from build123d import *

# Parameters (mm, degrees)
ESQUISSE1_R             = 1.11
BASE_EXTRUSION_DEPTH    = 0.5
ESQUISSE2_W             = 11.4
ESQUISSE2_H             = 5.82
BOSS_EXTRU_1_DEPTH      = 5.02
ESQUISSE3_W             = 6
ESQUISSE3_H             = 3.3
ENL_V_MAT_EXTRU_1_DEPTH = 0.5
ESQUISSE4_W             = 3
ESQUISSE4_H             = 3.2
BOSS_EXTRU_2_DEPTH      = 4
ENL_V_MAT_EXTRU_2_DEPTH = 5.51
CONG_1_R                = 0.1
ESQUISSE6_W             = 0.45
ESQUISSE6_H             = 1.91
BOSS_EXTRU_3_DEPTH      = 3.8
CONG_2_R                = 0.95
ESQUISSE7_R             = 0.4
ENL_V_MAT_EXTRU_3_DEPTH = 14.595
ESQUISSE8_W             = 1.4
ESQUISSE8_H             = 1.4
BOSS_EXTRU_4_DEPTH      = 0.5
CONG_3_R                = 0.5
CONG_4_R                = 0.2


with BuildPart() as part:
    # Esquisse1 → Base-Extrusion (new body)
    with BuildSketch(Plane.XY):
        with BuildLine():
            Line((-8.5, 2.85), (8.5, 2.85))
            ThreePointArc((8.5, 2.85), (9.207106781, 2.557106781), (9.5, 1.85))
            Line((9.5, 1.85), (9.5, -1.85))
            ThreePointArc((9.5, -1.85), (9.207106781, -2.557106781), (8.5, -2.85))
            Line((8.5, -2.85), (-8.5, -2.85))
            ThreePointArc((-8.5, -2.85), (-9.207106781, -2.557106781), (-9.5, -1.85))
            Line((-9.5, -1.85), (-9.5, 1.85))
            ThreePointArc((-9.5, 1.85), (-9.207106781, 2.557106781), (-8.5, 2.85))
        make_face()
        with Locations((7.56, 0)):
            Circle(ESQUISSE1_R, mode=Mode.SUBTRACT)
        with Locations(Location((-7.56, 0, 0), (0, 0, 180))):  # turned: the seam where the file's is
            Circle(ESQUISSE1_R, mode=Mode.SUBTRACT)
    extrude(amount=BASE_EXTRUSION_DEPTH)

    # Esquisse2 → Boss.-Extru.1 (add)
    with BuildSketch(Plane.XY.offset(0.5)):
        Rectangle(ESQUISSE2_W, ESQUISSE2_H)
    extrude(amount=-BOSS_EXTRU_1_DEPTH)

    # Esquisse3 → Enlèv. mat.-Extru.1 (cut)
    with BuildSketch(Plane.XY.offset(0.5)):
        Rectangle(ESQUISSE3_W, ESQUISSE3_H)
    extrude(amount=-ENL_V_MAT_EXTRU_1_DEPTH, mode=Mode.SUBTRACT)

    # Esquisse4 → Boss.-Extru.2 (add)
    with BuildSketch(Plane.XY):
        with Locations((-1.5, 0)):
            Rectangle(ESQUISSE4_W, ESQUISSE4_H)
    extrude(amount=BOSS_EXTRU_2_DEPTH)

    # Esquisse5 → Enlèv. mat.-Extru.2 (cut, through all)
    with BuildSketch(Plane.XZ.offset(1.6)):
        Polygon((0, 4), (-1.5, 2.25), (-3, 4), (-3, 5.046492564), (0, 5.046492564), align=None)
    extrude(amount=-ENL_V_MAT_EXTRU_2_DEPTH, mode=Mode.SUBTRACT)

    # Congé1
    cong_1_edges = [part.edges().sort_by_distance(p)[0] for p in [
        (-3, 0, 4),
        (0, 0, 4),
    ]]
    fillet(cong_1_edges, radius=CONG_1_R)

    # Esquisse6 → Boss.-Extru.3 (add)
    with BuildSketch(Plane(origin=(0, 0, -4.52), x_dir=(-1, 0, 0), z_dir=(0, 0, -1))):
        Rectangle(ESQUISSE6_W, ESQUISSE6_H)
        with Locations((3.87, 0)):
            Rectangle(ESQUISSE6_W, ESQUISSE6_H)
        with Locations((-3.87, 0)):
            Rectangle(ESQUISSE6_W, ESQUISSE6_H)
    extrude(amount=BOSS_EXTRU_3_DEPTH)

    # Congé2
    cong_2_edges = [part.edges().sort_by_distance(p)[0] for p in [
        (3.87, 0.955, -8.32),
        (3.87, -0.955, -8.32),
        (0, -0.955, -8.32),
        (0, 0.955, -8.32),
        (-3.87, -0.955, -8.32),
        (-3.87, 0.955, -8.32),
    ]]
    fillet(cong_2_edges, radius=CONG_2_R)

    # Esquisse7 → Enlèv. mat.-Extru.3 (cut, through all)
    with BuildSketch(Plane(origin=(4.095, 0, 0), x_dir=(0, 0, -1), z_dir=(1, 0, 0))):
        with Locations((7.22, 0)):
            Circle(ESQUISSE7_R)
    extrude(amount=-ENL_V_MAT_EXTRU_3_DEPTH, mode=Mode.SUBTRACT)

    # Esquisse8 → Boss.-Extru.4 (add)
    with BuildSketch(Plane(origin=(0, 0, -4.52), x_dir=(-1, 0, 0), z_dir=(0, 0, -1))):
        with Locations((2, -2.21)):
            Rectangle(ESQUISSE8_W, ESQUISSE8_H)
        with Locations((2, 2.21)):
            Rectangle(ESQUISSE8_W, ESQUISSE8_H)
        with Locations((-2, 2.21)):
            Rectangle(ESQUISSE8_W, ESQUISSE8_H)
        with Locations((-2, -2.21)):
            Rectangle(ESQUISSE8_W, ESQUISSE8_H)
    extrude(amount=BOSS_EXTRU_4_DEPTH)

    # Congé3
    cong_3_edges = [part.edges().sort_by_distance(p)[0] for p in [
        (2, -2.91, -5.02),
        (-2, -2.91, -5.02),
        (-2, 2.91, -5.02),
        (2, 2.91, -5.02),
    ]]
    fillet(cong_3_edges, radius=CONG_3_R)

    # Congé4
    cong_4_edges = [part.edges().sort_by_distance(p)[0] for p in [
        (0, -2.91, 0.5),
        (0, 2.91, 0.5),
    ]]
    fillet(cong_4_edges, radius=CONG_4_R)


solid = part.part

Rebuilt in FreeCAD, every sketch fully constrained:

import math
import FreeCAD as App
import Part
import Sketcher
from FreeCAD import Vector
Q = App.Units.Quantity


def edges_at(feature, points):
    """Names of the edges that pass closest to the given points."""
    edges = feature.Shape.Edges
    near = lambda p: min(range(len(edges)), key=lambda i: edges[i].distToShape(Part.Vertex(*p))[0])
    return sorted({f"Edge{near(p) + 1}" for p in points})

doc = App.newDocument("Part")
body = doc.addObject("PartDesign::Body", "Body")

sketch1 = body.newObject("Sketcher::SketchObject", "Sketch")
sketch1.AttachmentSupport = (doc.getObject("XY_Plane"), [""])
sketch1.MapMode = "FlatFace"
sketch1.addGeometry(Part.LineSegment(Vector(8.5, 2.9, 0), Vector(-8.5, 2.9, 0)), False)
sketch1.addGeometry(Part.ArcOfCircle(Part.Circle(Vector(-8.5, 1.8, 0), Vector(0, 0, 1), 1), math.radians(90), math.radians(180)), False)
sketch1.addGeometry(Part.LineSegment(Vector(-9.5, 1.9, 0), Vector(-9.5, -1.9, 0)), False)
sketch1.addGeometry(Part.ArcOfCircle(Part.Circle(Vector(-8.5, -1.8, 0), Vector(0, 0, 1), 1), math.radians(-180), math.radians(-90)), False)
sketch1.addGeometry(Part.LineSegment(Vector(-8.5, -2.9, 0), Vector(8.5, -2.9, 0)), False)
sketch1.addGeometry(Part.ArcOfCircle(Part.Circle(Vector(8.5, -1.8, 0), Vector(0, 0, 1), 1), math.radians(-90), math.radians(0)), False)
sketch1.addGeometry(Part.LineSegment(Vector(9.5, -1.9, 0), Vector(9.5, 1.9, 0)), False)
sketch1.addGeometry(Part.ArcOfCircle(Part.Circle(Vector(8.5, 1.8, 0), Vector(0, 0, 1), 1), math.radians(0), math.radians(90)), False)
sketch1.addGeometry(Part.Circle(Vector(7.6, 0, 0), Vector(0, 0, 1), 1.1), False)
sketch1.addGeometry(Part.Circle(Vector(-7.6, 0, 0), Vector(0, 0, 1), 1.1), False)
sketch1.addConstraint(Sketcher.Constraint("Tangent", 0, 2, 1, 1))
sketch1.addConstraint(Sketcher.Constraint("Tangent", 1, 2, 2, 1))
sketch1.addConstraint(Sketcher.Constraint("Tangent", 2, 2, 3, 1))
sketch1.addConstraint(Sketcher.Constraint("Tangent", 3, 2, 4, 1))
sketch1.addConstraint(Sketcher.Constraint("Tangent", 4, 2, 5, 1))
sketch1.addConstraint(Sketcher.Constraint("Tangent", 5, 2, 6, 1))
sketch1.addConstraint(Sketcher.Constraint("Tangent", 6, 2, 7, 1))
sketch1.addConstraint(Sketcher.Constraint("Tangent", 7, 2, 0, 1))
sketch1.addConstraint(Sketcher.Constraint("Horizontal", 0))
sketch1.addConstraint(Sketcher.Constraint("Vertical", 2))
sketch1.addConstraint(Sketcher.Constraint("Horizontal", 4))
sketch1.addConstraint(Sketcher.Constraint("Vertical", 6))
sketch1.addConstraint(Sketcher.Constraint("Equal", 1, 3))
sketch1.addConstraint(Sketcher.Constraint("Equal", 3, 5))
sketch1.addConstraint(Sketcher.Constraint("Equal", 5, 7))
sketch1.addConstraint(Sketcher.Constraint("Equal", 8, 9))
sketch1.addConstraint(Sketcher.Constraint("Symmetric", 1, 3, 5, 3, -1, 1))
sketch1.addConstraint(Sketcher.Constraint("Symmetric", 8, 3, 9, 3, -1, 1))
sketch1.addConstraint(Sketcher.Constraint("PointOnObject", 8, 3, -1))
sketch1.addConstraint(Sketcher.Constraint("Radius", 1, Q("1 mm")))
sketch1.addConstraint(Sketcher.Constraint("Diameter", 8, Q("2.22 mm")))
sketch1.addConstraint(Sketcher.Constraint("DistanceX", 0, 2, 0, 1, Q("17 mm")))
sketch1.addConstraint(Sketcher.Constraint("DistanceY", 2, 2, 2, 1, Q("3.7 mm")))
sketch1.addConstraint(Sketcher.Constraint("DistanceX", -1, 1, 8, 3, Q("7.56 mm")))
pad1 = body.newObject("PartDesign::Pad", "Pad")
pad1.Profile = sketch1
pad1.Length = 0.5

sketch2 = body.newObject("Sketcher::SketchObject", "Sketch001")
sketch2.AttachmentSupport = (doc.getObject("XY_Plane"), [""])
sketch2.MapMode = "FlatFace"
sketch2.AttachmentOffset = App.Placement(Vector(0, 0, 0.5), App.Rotation())
sketch2.addGeometry(Part.LineSegment(Vector(-6, 3, 0), Vector(-6, -3, 0)), False)
sketch2.addGeometry(Part.LineSegment(Vector(-6, -3, 0), Vector(6, -3, 0)), False)
sketch2.addGeometry(Part.LineSegment(Vector(6, -3, 0), Vector(6, 3, 0)), False)
sketch2.addGeometry(Part.LineSegment(Vector(6, 3, 0), Vector(-6, 3, 0)), False)
sketch2.addConstraint(Sketcher.Constraint("Coincident", 0, 2, 1, 1))
sketch2.addConstraint(Sketcher.Constraint("Coincident", 1, 2, 2, 1))
sketch2.addConstraint(Sketcher.Constraint("Coincident", 2, 2, 3, 1))
sketch2.addConstraint(Sketcher.Constraint("Coincident", 3, 2, 0, 1))
sketch2.addConstraint(Sketcher.Constraint("Vertical", 0))
sketch2.addConstraint(Sketcher.Constraint("Horizontal", 1))
sketch2.addConstraint(Sketcher.Constraint("Vertical", 2))
sketch2.addConstraint(Sketcher.Constraint("Horizontal", 3))
sketch2.addConstraint(Sketcher.Constraint("Symmetric", 0, 2, 2, 2, -1, 1))
sketch2.addConstraint(Sketcher.Constraint("DistanceX", 1, 1, 1, 2, Q("11.4 mm")))
sketch2.addConstraint(Sketcher.Constraint("DistanceY", 0, 2, 0, 1, Q("5.82 mm")))
pad2 = body.newObject("PartDesign::Pad", "Pad001")
pad2.Profile = sketch2
pad2.Length = 5.02
pad2.Reversed = True

sketch3 = body.newObject("Sketcher::SketchObject", "Sketch002")
sketch3.AttachmentSupport = (doc.getObject("XY_Plane"), [""])
sketch3.MapMode = "FlatFace"
sketch3.AttachmentOffset = App.Placement(Vector(0, 0, 0.5), App.Rotation())
sketch3.addGeometry(Part.LineSegment(Vector(-3, 1.6, 0), Vector(-3, -1.6, 0)), False)
sketch3.addGeometry(Part.LineSegment(Vector(-3, -1.6, 0), Vector(3, -1.6, 0)), False)
sketch3.addGeometry(Part.LineSegment(Vector(3, -1.6, 0), Vector(3, 1.6, 0)), False)
sketch3.addGeometry(Part.LineSegment(Vector(3, 1.6, 0), Vector(-3, 1.6, 0)), False)
sketch3.addConstraint(Sketcher.Constraint("Coincident", 0, 2, 1, 1))
sketch3.addConstraint(Sketcher.Constraint("Coincident", 1, 2, 2, 1))
sketch3.addConstraint(Sketcher.Constraint("Coincident", 2, 2, 3, 1))
sketch3.addConstraint(Sketcher.Constraint("Coincident", 3, 2, 0, 1))
sketch3.addConstraint(Sketcher.Constraint("Vertical", 0))
sketch3.addConstraint(Sketcher.Constraint("Horizontal", 1))
sketch3.addConstraint(Sketcher.Constraint("Vertical", 2))
sketch3.addConstraint(Sketcher.Constraint("Horizontal", 3))
sketch3.addConstraint(Sketcher.Constraint("Symmetric", 0, 2, 2, 2, -1, 1))
sketch3.addConstraint(Sketcher.Constraint("DistanceX", 1, 1, 1, 2, Q("6 mm")))
sketch3.addConstraint(Sketcher.Constraint("DistanceY", 0, 2, 0, 1, Q("3.3 mm")))
pocket1 = body.newObject("PartDesign::Pocket", "Pocket")
pocket1.Profile = sketch3
pocket1.Length = 0.5

sketch4 = body.newObject("Sketcher::SketchObject", "Sketch003")
sketch4.AttachmentSupport = (doc.getObject("XY_Plane"), [""])
sketch4.MapMode = "FlatFace"
sketch4.addGeometry(Part.LineSegment(Vector(-3, 1.6, 0), Vector(-3, -1.6, 0)), False)
sketch4.addGeometry(Part.LineSegment(Vector(-3, -1.6, 0), Vector(0, -1.6, 0)), False)
sketch4.addGeometry(Part.LineSegment(Vector(0, -1.6, 0), Vector(0, 1.6, 0)), False)
sketch4.addGeometry(Part.LineSegment(Vector(0, 1.6, 0), Vector(-3, 1.6, 0)), False)
sketch4.addConstraint(Sketcher.Constraint("Coincident", 0, 2, 1, 1))
sketch4.addConstraint(Sketcher.Constraint("Coincident", 1, 2, 2, 1))
sketch4.addConstraint(Sketcher.Constraint("Coincident", 2, 2, 3, 1))
sketch4.addConstraint(Sketcher.Constraint("Coincident", 3, 2, 0, 1))
sketch4.addConstraint(Sketcher.Constraint("Vertical", 0))
sketch4.addConstraint(Sketcher.Constraint("Horizontal", 1))
sketch4.addConstraint(Sketcher.Constraint("Vertical", 2))
sketch4.addConstraint(Sketcher.Constraint("Horizontal", 3))
sketch4.addConstraint(Sketcher.Constraint("Symmetric", 1, 2, 2, 2, -1, 1))
sketch4.addConstraint(Sketcher.Constraint("DistanceX", 1, 1, 1, 2, Q("3 mm")))
sketch4.addConstraint(Sketcher.Constraint("DistanceY", 0, 2, 0, 1, Q("3.2 mm")))
pad3 = body.newObject("PartDesign::Pad", "Pad002")
pad3.Profile = sketch4
pad3.Length = 4

sketch5 = body.newObject("Sketcher::SketchObject", "Sketch004")
sketch5.AttachmentSupport = (doc.getObject("XZ_Plane"), [""])
sketch5.MapMode = "FlatFace"
sketch5.AttachmentOffset = App.Placement(Vector(0, 0, 1.6), App.Rotation())
sketch5.addGeometry(Part.LineSegment(Vector(-1.5, 2.2, 0), Vector(0, 4, 0)), False)
sketch5.addGeometry(Part.LineSegment(Vector(0, 4, 0), Vector(0, 5, 0)), False)
sketch5.addGeometry(Part.LineSegment(Vector(0, 5, 0), Vector(-3, 5, 0)), False)
sketch5.addGeometry(Part.LineSegment(Vector(-3, 5, 0), Vector(-3, 4, 0)), False)
sketch5.addGeometry(Part.LineSegment(Vector(-3, 4, 0), Vector(-1.5, 2.2, 0)), False)
sketch5.addConstraint(Sketcher.Constraint("Coincident", 0, 2, 1, 1))
sketch5.addConstraint(Sketcher.Constraint("Coincident", 1, 2, 2, 1))
sketch5.addConstraint(Sketcher.Constraint("Coincident", 2, 2, 3, 1))
sketch5.addConstraint(Sketcher.Constraint("Coincident", 3, 2, 4, 1))
sketch5.addConstraint(Sketcher.Constraint("Coincident", 4, 2, 0, 1))
sketch5.addConstraint(Sketcher.Constraint("Vertical", 1))
sketch5.addConstraint(Sketcher.Constraint("Horizontal", 2))
sketch5.addConstraint(Sketcher.Constraint("Vertical", 3))
sketch5.addConstraint(Sketcher.Constraint("PointOnObject", 0, 2, -2))
sketch5.addConstraint(Sketcher.Constraint("Horizontal", 0, 2, 3, 2))
sketch5.addConstraint(Sketcher.Constraint("Equal", 0, 4))
sketch5.addConstraint(Sketcher.Constraint("DistanceX", 2, 2, 2, 1, Q("3 mm")))
sketch5.addConstraint(Sketcher.Constraint("DistanceY", -1, 1, 0, 2, Q("4 mm")))
sketch5.addConstraint(Sketcher.Constraint("DistanceY", -1, 1, 4, 2, Q("2.25 mm")))
sketch5.addConstraint(Sketcher.Constraint("DistanceY", 1, 1, 1, 2, Q("1.046493 mm")))
pocket2 = body.newObject("PartDesign::Pocket", "Pocket001")
pocket2.Profile = sketch5
pocket2.Type = "ThroughAll"
doc.recompute()

fillet = body.newObject("PartDesign::Fillet", "Fillet")
fillet.Base = (pocket2, edges_at(pocket2, [(-3, 0, 4), (0, 0, 4)]))
fillet.Radius = 0.1

sketch6 = body.newObject("Sketcher::SketchObject", "Sketch005")
sketch6.AttachmentSupport = (doc.getObject("XY_Plane"), [""])
sketch6.MapMode = "FlatFace"
sketch6.AttachmentOffset = App.Placement(Vector(0, 0, -4.52), App.Rotation())
sketch6.addGeometry(Part.LineSegment(Vector(0.23, 0.95, 0), Vector(0.23, -0.95, 0)), False)
sketch6.addGeometry(Part.LineSegment(Vector(0.23, -0.95, 0), Vector(-0.23, -0.95, 0)), False)
sketch6.addGeometry(Part.LineSegment(Vector(-0.23, -0.95, 0), Vector(-0.23, 0.95, 0)), False)
sketch6.addGeometry(Part.LineSegment(Vector(-0.23, 0.95, 0), Vector(0.23, 0.95, 0)), False)
sketch6.addGeometry(Part.LineSegment(Vector(-3.65, 0.95, 0), Vector(-3.65, -0.95, 0)), False)
sketch6.addGeometry(Part.LineSegment(Vector(-3.65, -0.95, 0), Vector(-4.09, -0.95, 0)), False)
sketch6.addGeometry(Part.LineSegment(Vector(-4.09, -0.95, 0), Vector(-4.09, 0.95, 0)), False)
sketch6.addGeometry(Part.LineSegment(Vector(-4.09, 0.95, 0), Vector(-3.65, 0.95, 0)), False)
sketch6.addGeometry(Part.LineSegment(Vector(4.09, 0.95, 0), Vector(4.09, -0.95, 0)), False)
sketch6.addGeometry(Part.LineSegment(Vector(4.09, -0.95, 0), Vector(3.65, -0.95, 0)), False)
sketch6.addGeometry(Part.LineSegment(Vector(3.65, -0.95, 0), Vector(3.65, 0.95, 0)), False)
sketch6.addGeometry(Part.LineSegment(Vector(3.65, 0.95, 0), Vector(4.09, 0.95, 0)), False)
sketch6.addConstraint(Sketcher.Constraint("Coincident", 0, 2, 1, 1))
sketch6.addConstraint(Sketcher.Constraint("Coincident", 1, 2, 2, 1))
sketch6.addConstraint(Sketcher.Constraint("Coincident", 2, 2, 3, 1))
sketch6.addConstraint(Sketcher.Constraint("Coincident", 3, 2, 0, 1))
sketch6.addConstraint(Sketcher.Constraint("Coincident", 4, 2, 5, 1))
sketch6.addConstraint(Sketcher.Constraint("Coincident", 5, 2, 6, 1))
sketch6.addConstraint(Sketcher.Constraint("Coincident", 6, 2, 7, 1))
sketch6.addConstraint(Sketcher.Constraint("Coincident", 7, 2, 4, 1))
sketch6.addConstraint(Sketcher.Constraint("Coincident", 8, 2, 9, 1))
sketch6.addConstraint(Sketcher.Constraint("Coincident", 9, 2, 10, 1))
sketch6.addConstraint(Sketcher.Constraint("Coincident", 10, 2, 11, 1))
sketch6.addConstraint(Sketcher.Constraint("Coincident", 11, 2, 8, 1))
sketch6.addConstraint(Sketcher.Constraint("Vertical", 0))
sketch6.addConstraint(Sketcher.Constraint("Horizontal", 1))
sketch6.addConstraint(Sketcher.Constraint("Vertical", 2))
sketch6.addConstraint(Sketcher.Constraint("Horizontal", 3))
sketch6.addConstraint(Sketcher.Constraint("Vertical", 4))
sketch6.addConstraint(Sketcher.Constraint("Horizontal", 5))
sketch6.addConstraint(Sketcher.Constraint("Vertical", 6))
sketch6.addConstraint(Sketcher.Constraint("Horizontal", 7))
sketch6.addConstraint(Sketcher.Constraint("Vertical", 8))
sketch6.addConstraint(Sketcher.Constraint("Horizontal", 9))
sketch6.addConstraint(Sketcher.Constraint("Vertical", 10))
sketch6.addConstraint(Sketcher.Constraint("Horizontal", 11))
sketch6.addConstraint(Sketcher.Constraint("Symmetric", 0, 2, 2, 2, -1, 1))
sketch6.addConstraint(Sketcher.Constraint("Symmetric", 6, 2, 8, 2, -1, 1))
sketch6.addConstraint(Sketcher.Constraint("Symmetric", 4, 2, 10, 2, -1, 1))
sketch6.addConstraint(Sketcher.Constraint("Horizontal", 1, 2, 4, 2))
sketch6.addConstraint(Sketcher.Constraint("Horizontal", 3, 2, 6, 2))
sketch6.addConstraint(Sketcher.Constraint("Equal", 3, 5))
sketch6.addConstraint(Sketcher.Constraint("DistanceX", 1, 2, 1, 1, Q("0.45 mm")))
sketch6.addConstraint(Sketcher.Constraint("DistanceY", 0, 2, 0, 1, Q("1.91 mm")))
sketch6.addConstraint(Sketcher.Constraint("DistanceX", 4, 2, 1, 2, Q("3.42 mm")))
pad4 = body.newObject("PartDesign::Pad", "Pad003")
pad4.Profile = sketch6
pad4.Length = 3.8
pad4.Reversed = True
doc.recompute()

fillet2 = body.newObject("PartDesign::Fillet", "Fillet001")
fillet2.Base = (pad4, edges_at(pad4, [
    (3.87, 0.955, -8.32),
    (3.87, -0.955, -8.32),
    (0, -0.955, -8.32),
    (0, 0.955, -8.32),
    (-3.87, -0.955, -8.32),
    (-3.87, 0.955, -8.32),
]))
fillet2.Radius = 0.95

sketch7 = body.newObject("Sketcher::SketchObject", "Sketch006")
sketch7.AttachmentSupport = (doc.getObject("YZ_Plane"), [""])
sketch7.MapMode = "FlatFace"
sketch7.AttachmentOffset = App.Placement(Vector(0, 0, 4.095), App.Rotation())
sketch7.addGeometry(Part.Circle(Vector(0, -7.22, 0), Vector(0, 0, 1), 0.4), False)
sketch7.addConstraint(Sketcher.Constraint("PointOnObject", 0, 3, -2))
sketch7.addConstraint(Sketcher.Constraint("Diameter", 0, Q("0.8 mm")))
sketch7.addConstraint(Sketcher.Constraint("DistanceY", 0, 3, -1, 1, Q("7.22 mm")))
pocket3 = body.newObject("PartDesign::Pocket", "Pocket002")
pocket3.Profile = sketch7
pocket3.Type = "ThroughAll"

sketch8 = body.newObject("Sketcher::SketchObject", "Sketch007")
sketch8.AttachmentSupport = (doc.getObject("XY_Plane"), [""])
sketch8.MapMode = "FlatFace"
sketch8.AttachmentOffset = App.Placement(Vector(0, 0, -4.52), App.Rotation())
sketch8.addGeometry(Part.LineSegment(Vector(-1.3, -1.5, 0), Vector(-1.3, -2.9, 0)), False)
sketch8.addGeometry(Part.LineSegment(Vector(-1.3, -2.9, 0), Vector(-2.7, -2.9, 0)), False)
sketch8.addGeometry(Part.LineSegment(Vector(-2.7, -2.9, 0), Vector(-2.7, -1.5, 0)), False)
sketch8.addGeometry(Part.LineSegment(Vector(-2.7, -1.5, 0), Vector(-1.3, -1.5, 0)), False)
sketch8.addGeometry(Part.LineSegment(Vector(-1.3, 2.9, 0), Vector(-1.3, 1.5, 0)), False)
sketch8.addGeometry(Part.LineSegment(Vector(-1.3, 1.5, 0), Vector(-2.7, 1.5, 0)), False)
sketch8.addGeometry(Part.LineSegment(Vector(-2.7, 1.5, 0), Vector(-2.7, 2.9, 0)), False)
sketch8.addGeometry(Part.LineSegment(Vector(-2.7, 2.9, 0), Vector(-1.3, 2.9, 0)), False)
sketch8.addGeometry(Part.LineSegment(Vector(2.7, 2.9, 0), Vector(2.7, 1.5, 0)), False)
sketch8.addGeometry(Part.LineSegment(Vector(2.7, 1.5, 0), Vector(1.3, 1.5, 0)), False)
sketch8.addGeometry(Part.LineSegment(Vector(1.3, 1.5, 0), Vector(1.3, 2.9, 0)), False)
sketch8.addGeometry(Part.LineSegment(Vector(1.3, 2.9, 0), Vector(2.7, 2.9, 0)), False)
sketch8.addGeometry(Part.LineSegment(Vector(2.7, -1.5, 0), Vector(2.7, -2.9, 0)), False)
sketch8.addGeometry(Part.LineSegment(Vector(2.7, -2.9, 0), Vector(1.3, -2.9, 0)), False)
sketch8.addGeometry(Part.LineSegment(Vector(1.3, -2.9, 0), Vector(1.3, -1.5, 0)), False)
sketch8.addGeometry(Part.LineSegment(Vector(1.3, -1.5, 0), Vector(2.7, -1.5, 0)), False)
sketch8.addConstraint(Sketcher.Constraint("Coincident", 0, 2, 1, 1))
sketch8.addConstraint(Sketcher.Constraint("Coincident", 1, 2, 2, 1))
sketch8.addConstraint(Sketcher.Constraint("Coincident", 2, 2, 3, 1))
sketch8.addConstraint(Sketcher.Constraint("Coincident", 3, 2, 0, 1))
sketch8.addConstraint(Sketcher.Constraint("Coincident", 4, 2, 5, 1))
sketch8.addConstraint(Sketcher.Constraint("Coincident", 5, 2, 6, 1))
sketch8.addConstraint(Sketcher.Constraint("Coincident", 6, 2, 7, 1))
sketch8.addConstraint(Sketcher.Constraint("Coincident", 7, 2, 4, 1))
sketch8.addConstraint(Sketcher.Constraint("Coincident", 8, 2, 9, 1))
sketch8.addConstraint(Sketcher.Constraint("Coincident", 9, 2, 10, 1))
sketch8.addConstraint(Sketcher.Constraint("Coincident", 10, 2, 11, 1))
sketch8.addConstraint(Sketcher.Constraint("Coincident", 11, 2, 8, 1))
sketch8.addConstraint(Sketcher.Constraint("Coincident", 12, 2, 13, 1))
sketch8.addConstraint(Sketcher.Constraint("Coincident", 13, 2, 14, 1))
sketch8.addConstraint(Sketcher.Constraint("Coincident", 14, 2, 15, 1))
sketch8.addConstraint(Sketcher.Constraint("Coincident", 15, 2, 12, 1))
sketch8.addConstraint(Sketcher.Constraint("Vertical", 0))
sketch8.addConstraint(Sketcher.Constraint("Horizontal", 1))
sketch8.addConstraint(Sketcher.Constraint("Vertical", 2))
sketch8.addConstraint(Sketcher.Constraint("Horizontal", 3))
sketch8.addConstraint(Sketcher.Constraint("Vertical", 4))
sketch8.addConstraint(Sketcher.Constraint("Horizontal", 5))
sketch8.addConstraint(Sketcher.Constraint("Vertical", 6))
sketch8.addConstraint(Sketcher.Constraint("Horizontal", 7))
sketch8.addConstraint(Sketcher.Constraint("Vertical", 8))
sketch8.addConstraint(Sketcher.Constraint("Horizontal", 9))
sketch8.addConstraint(Sketcher.Constraint("Vertical", 10))
sketch8.addConstraint(Sketcher.Constraint("Horizontal", 11))
sketch8.addConstraint(Sketcher.Constraint("Vertical", 12))
sketch8.addConstraint(Sketcher.Constraint("Horizontal", 13))
sketch8.addConstraint(Sketcher.Constraint("Vertical", 14))
sketch8.addConstraint(Sketcher.Constraint("Horizontal", 15))
sketch8.addConstraint(Sketcher.Constraint("Symmetric", 2, 2, 8, 2, -1, 1))
sketch8.addConstraint(Sketcher.Constraint("Symmetric", 0, 2, 10, 2, -1, 1))
sketch8.addConstraint(Sketcher.Constraint("Symmetric", 6, 2, 12, 2, -1, 1))
sketch8.addConstraint(Sketcher.Constraint("Symmetric", 4, 2, 14, 2, -1, 1))
sketch8.addConstraint(Sketcher.Constraint("Symmetric", 5, 2, 8, 2, -2))
sketch8.addConstraint(Sketcher.Constraint("Symmetric", 7, 2, 10, 2, -2))
sketch8.addConstraint(Sketcher.Constraint("Equal", 15, 0))
sketch8.addConstraint(Sketcher.Constraint("DistanceX", 1, 2, 1, 1, Q("1.4 mm")))
sketch8.addConstraint(Sketcher.Constraint("DistanceX", 4, 2, 8, 2, Q("4 mm")))
sketch8.addConstraint(Sketcher.Constraint("DistanceY", 0, 2, -1, 1, Q("2.91 mm")))
pad5 = body.newObject("PartDesign::Pad", "Pad004")
pad5.Profile = sketch8
pad5.Length = 0.5
pad5.Reversed = True
doc.recompute()

fillet3 = body.newObject("PartDesign::Fillet", "Fillet002")
fillet3.Base = (pad5, edges_at(pad5, [
    (2, -2.91, -5.02),
    (-2, -2.91, -5.02),
    (-2, 2.91, -5.02),
    (2, 2.91, -5.02),
]))
fillet3.Radius = 0.5
doc.recompute()

fillet4 = body.newObject("PartDesign::Fillet", "Fillet003")
fillet4.Base = (fillet3, edges_at(fillet3, [(0, -2.91, 0.5), (0, 2.91, 0.5)]))
fillet4.Radius = 0.2

doc.recompute()
